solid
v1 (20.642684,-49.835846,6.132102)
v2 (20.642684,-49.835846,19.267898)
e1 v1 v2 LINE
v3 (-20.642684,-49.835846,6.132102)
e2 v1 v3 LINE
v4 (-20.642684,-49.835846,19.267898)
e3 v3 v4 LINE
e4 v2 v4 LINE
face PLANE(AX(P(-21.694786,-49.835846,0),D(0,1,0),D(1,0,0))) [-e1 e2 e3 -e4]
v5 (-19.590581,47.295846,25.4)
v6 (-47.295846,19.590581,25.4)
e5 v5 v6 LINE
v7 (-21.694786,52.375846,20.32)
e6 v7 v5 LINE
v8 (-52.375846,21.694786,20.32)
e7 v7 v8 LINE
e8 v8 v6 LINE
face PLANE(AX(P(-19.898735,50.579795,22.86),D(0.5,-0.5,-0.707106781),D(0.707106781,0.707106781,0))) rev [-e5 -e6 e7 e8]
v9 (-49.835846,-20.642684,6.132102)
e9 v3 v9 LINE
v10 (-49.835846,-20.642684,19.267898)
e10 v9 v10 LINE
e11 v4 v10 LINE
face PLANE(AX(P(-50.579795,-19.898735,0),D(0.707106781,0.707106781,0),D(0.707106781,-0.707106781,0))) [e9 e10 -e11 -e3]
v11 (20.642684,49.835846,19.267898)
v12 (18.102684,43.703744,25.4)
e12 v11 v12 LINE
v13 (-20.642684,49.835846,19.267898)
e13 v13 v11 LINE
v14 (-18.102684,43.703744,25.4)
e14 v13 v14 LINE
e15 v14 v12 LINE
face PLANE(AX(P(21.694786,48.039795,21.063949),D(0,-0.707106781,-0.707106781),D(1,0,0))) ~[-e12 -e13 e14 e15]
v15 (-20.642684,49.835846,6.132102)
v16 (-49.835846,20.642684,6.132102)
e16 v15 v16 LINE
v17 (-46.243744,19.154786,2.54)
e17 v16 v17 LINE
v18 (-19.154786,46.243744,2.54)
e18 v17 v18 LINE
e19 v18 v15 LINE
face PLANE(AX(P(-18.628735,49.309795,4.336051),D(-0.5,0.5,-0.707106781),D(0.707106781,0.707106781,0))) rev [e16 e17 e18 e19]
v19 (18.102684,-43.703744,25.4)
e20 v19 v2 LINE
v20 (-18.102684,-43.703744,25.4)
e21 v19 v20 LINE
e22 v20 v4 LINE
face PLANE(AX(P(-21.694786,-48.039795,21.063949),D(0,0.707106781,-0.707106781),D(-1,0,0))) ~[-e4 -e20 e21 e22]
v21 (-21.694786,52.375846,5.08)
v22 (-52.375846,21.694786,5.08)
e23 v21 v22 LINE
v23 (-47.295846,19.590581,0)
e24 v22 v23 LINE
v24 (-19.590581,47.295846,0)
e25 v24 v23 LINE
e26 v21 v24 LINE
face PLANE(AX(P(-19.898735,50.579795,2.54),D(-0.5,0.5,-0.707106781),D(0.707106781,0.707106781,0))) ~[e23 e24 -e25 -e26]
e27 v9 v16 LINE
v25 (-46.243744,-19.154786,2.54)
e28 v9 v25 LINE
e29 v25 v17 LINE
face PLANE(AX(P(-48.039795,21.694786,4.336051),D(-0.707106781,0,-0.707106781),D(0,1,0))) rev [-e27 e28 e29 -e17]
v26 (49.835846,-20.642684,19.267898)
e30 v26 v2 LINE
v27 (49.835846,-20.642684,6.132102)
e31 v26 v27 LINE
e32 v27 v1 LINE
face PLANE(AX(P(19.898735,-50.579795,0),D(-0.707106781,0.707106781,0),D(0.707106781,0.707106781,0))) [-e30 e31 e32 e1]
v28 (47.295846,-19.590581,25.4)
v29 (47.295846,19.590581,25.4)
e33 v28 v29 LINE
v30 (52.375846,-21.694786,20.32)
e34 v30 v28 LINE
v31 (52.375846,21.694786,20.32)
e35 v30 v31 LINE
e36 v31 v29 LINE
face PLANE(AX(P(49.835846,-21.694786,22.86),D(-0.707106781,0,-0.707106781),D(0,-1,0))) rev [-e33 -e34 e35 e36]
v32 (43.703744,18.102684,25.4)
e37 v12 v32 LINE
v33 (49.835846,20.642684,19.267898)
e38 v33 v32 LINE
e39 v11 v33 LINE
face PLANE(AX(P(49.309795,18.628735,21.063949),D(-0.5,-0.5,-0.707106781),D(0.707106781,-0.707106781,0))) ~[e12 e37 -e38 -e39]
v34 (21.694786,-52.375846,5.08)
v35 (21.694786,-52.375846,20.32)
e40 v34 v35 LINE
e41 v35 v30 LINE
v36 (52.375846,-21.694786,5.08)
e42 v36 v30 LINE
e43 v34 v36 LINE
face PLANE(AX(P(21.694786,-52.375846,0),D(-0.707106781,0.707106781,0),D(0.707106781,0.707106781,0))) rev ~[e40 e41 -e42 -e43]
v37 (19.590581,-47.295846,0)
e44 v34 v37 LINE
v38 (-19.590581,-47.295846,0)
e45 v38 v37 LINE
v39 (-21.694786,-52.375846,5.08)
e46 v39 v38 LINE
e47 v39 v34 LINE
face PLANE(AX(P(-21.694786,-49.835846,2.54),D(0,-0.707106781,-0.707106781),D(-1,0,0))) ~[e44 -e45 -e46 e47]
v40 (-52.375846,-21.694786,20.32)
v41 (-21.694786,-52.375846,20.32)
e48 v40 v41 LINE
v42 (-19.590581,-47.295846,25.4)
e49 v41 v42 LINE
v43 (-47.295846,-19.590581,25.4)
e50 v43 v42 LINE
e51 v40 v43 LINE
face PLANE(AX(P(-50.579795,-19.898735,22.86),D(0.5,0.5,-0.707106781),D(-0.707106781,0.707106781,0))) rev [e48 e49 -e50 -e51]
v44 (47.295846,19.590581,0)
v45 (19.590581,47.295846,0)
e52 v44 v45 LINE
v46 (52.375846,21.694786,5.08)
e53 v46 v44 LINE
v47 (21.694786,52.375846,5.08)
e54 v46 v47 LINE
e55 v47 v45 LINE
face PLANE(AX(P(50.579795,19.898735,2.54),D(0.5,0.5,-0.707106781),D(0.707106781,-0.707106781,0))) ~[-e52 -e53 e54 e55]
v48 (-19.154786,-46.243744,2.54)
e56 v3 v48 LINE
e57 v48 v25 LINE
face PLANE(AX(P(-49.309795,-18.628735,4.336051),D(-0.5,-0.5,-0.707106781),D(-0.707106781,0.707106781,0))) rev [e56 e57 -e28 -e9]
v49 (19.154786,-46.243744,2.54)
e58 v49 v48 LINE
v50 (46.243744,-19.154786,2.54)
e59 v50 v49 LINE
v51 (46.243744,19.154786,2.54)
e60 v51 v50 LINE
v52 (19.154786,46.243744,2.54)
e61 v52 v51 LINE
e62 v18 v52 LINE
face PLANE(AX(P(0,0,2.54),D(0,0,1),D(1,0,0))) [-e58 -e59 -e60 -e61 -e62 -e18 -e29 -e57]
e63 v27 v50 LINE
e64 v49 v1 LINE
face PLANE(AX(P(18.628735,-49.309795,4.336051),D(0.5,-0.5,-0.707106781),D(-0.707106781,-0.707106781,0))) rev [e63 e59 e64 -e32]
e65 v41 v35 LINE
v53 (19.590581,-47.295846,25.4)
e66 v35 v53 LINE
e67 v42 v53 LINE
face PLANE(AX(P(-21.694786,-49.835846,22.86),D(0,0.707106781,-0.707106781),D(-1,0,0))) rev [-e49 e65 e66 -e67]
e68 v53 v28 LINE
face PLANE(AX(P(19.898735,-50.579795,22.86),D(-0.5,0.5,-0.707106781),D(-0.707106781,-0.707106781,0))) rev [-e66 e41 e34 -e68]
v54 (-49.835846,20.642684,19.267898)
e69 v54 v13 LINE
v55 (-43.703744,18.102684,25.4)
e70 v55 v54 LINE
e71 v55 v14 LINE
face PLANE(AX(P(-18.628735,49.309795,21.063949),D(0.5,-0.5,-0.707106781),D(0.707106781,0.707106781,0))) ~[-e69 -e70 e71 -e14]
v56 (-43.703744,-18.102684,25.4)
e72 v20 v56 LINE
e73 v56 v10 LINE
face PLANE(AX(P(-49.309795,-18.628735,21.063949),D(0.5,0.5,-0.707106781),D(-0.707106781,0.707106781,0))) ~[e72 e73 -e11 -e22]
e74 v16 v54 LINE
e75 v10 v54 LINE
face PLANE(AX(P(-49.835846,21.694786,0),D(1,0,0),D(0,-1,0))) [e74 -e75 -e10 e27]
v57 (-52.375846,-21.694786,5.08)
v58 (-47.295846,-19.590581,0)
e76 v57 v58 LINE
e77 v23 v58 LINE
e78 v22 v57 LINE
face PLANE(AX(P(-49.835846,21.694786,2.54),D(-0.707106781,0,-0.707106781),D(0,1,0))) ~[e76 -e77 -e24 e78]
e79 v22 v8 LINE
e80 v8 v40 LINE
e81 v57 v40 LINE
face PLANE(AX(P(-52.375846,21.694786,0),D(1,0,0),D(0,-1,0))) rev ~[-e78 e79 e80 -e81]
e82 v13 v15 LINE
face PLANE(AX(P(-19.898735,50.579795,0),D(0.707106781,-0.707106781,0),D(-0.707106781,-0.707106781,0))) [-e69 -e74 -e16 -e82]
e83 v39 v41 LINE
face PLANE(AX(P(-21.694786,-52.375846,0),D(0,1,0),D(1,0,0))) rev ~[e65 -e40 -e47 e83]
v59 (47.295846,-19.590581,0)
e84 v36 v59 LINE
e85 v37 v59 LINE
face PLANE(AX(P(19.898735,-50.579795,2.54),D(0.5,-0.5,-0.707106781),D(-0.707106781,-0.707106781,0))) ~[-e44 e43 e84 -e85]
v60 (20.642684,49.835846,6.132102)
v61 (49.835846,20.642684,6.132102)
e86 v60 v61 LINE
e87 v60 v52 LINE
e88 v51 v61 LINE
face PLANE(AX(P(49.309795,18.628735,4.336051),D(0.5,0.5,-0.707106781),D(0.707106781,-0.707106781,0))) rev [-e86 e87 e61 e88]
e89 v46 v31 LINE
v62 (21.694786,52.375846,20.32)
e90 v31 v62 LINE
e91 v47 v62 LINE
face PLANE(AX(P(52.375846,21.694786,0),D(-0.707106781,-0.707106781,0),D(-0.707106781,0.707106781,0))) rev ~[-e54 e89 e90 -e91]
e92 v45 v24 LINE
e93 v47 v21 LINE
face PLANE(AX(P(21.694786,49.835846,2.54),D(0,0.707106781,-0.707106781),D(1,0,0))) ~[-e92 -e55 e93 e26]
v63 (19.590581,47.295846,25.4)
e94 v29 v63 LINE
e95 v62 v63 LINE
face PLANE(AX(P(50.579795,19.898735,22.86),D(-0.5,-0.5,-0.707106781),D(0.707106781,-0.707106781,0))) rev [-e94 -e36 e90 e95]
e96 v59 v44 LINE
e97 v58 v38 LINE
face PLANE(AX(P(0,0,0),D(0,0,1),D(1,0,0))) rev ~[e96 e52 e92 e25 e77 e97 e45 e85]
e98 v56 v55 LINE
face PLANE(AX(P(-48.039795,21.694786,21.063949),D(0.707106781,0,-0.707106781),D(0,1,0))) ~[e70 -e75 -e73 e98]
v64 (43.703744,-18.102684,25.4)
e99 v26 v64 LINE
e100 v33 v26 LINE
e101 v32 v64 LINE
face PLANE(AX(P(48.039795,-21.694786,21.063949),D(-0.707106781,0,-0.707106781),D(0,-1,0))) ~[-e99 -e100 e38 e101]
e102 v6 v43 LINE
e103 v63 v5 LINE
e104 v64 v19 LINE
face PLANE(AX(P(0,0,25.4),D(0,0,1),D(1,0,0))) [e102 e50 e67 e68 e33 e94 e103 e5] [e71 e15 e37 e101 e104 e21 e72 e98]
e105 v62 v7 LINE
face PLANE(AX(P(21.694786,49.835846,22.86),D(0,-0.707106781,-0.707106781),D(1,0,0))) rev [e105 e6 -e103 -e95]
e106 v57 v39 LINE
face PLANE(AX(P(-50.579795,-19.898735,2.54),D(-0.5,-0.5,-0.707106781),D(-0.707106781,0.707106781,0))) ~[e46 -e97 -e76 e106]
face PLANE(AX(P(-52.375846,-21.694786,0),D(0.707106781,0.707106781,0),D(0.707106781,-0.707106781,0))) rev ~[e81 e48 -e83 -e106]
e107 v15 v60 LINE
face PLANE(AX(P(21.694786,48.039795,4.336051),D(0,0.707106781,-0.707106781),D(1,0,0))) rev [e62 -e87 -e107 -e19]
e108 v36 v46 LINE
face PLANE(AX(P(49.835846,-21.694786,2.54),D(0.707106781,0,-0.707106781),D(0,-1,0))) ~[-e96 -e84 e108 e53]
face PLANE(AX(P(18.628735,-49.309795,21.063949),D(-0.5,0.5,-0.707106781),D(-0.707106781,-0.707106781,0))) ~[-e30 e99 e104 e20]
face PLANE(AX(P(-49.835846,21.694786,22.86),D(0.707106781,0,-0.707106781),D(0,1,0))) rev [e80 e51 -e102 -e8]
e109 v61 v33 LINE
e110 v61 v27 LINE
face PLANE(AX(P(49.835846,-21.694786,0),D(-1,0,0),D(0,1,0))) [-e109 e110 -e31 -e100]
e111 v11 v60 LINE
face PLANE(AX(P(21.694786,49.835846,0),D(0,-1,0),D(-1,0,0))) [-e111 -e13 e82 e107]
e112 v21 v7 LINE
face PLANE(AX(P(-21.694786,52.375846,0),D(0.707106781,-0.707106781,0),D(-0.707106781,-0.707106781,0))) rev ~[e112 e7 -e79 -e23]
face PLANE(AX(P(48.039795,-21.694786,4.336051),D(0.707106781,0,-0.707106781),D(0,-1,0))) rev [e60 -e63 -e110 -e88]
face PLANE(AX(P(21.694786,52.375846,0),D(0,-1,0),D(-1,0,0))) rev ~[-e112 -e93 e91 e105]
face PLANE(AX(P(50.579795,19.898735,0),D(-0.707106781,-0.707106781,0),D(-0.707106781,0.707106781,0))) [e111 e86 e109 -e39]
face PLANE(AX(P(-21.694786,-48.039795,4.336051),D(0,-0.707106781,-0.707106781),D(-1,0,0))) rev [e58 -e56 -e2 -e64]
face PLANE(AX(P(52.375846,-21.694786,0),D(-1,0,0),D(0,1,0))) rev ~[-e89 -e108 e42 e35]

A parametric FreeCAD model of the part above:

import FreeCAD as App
import Part
import Sketcher
from FreeCAD import Vector


def edges_at(feature, points):
    """Names of the edges that pass closest to the given points."""
    edges = feature.Shape.Edges
    near = lambda p: min(range(len(edges)), key=lambda i: edges[i].distToShape(Part.Vertex(*p))[0])
    return sorted({f"Edge{near(p) + 1}" for p in points})


def faces_at(feature, points):
    """Names of the faces that lie closest to the given points."""
    faces = feature.Shape.Faces
    near = lambda p: min(range(len(faces)), key=lambda i: faces[i].distToShape(Part.Vertex(*p))[0])
    return sorted({f"Face{near(p) + 1}" for p in points})


def add_polygon(sketch, points):
    """Adds a closed chain of lines whose ends are joined by coincident constraints."""
    first, n = sketch.GeometryCount, len(points)
    for a, b in zip(points, points[1:] + points[:1]):
        sketch.addGeometry(Part.LineSegment(App.Vector(*a, 0), App.Vector(*b, 0)), False)
    for i in range(n):
        sketch.addConstraint(Sketcher.Constraint("Coincident", first + i, 2, first + (i + 1) % n, 1))

doc = App.newDocument("Part")
params = doc.addObject("Spreadsheet::Sheet", "Params")
for row, (alias, value) in enumerate([
    ("pad1_length", "1 in"),
    ("chamfer_size", "0.2 in"),
    ("thickness_wall", "0.1 in"),
], start=1):
    params.set(f"A{row}", alias)
    params.set(f"B{row}", "=" + value)
    params.setAlias(f"B{row}", alias)

body = doc.addObject("PartDesign::Body", "Body")

# Sketch on XY plane
sketch1 = body.newObject("Sketcher::SketchObject", "Sketch")
sketch1.AttachmentSupport = (doc.getObject("XY_Plane"), [""])
sketch1.MapMode = "FlatFace"
add_polygon(sketch1, [(52, -22), (52, 22), (22, 52), (-22, 52), (-52, 22), (-52, -22), (-22, -52), (22, -52)])  # lines 0-7
sketch1.addConstraint(Sketcher.Constraint("Vertical", 0))
sketch1.addConstraint(Sketcher.Constraint("Horizontal", 2))
sketch1.addConstraint(Sketcher.Constraint("Vertical", 4))
sketch1.addConstraint(Sketcher.Constraint("Horizontal", 6))
sketch1.addConstraint(Sketcher.Constraint("Symmetric", 0, 2, 4, 2, -1, 1))
sketch1.addConstraint(Sketcher.Constraint("Symmetric", 1, 2, 5, 2, -1, 1))
sketch1.addConstraint(Sketcher.Constraint("Perpendicular", 1, 3))
sketch1.addConstraint(Sketcher.Constraint("Perpendicular", 5, 7))
sketch1.addConstraint(Sketcher.Constraint("Horizontal", 0, 2, 3, 2))
sketch1.addConstraint(Sketcher.Constraint("Horizontal", 4, 2, 7, 2))
sketch1.addConstraint(Sketcher.Constraint("Vertical", 2, 2, 5, 2))
sketch1.addConstraint(Sketcher.Constraint("Equal", 6, 0))
sketch1.addConstraint(Sketcher.Constraint("Distance", 1, 43.389571))
sketch1.addConstraint(Sketcher.Constraint("DistanceX", 2, 2, 2, 1, 43.389572))
pad1 = body.newObject("PartDesign::Pad", "Pad")
pad1.Profile = sketch1
pad1.setExpression("Length", "Params.pad1_length")
doc.recompute()

chamfer = body.newObject("PartDesign::Chamfer", "Chamfer")
chamfer.Base = (pad1, edges_at(pad1, [
    (37.035, -37.035, 25.4),
    (52.376, 0, 25.4),
    (37.035, 37.035, 25.4),
    (0, 52.376, 25.4),
    (-37.035, 37.035, 25.4),
    (-52.376, 0, 25.4),
    (-37.035, -37.035, 25.4),
    (0, -52.376, 25.4),
    (37.035, -37.035, 0),
    (52.376, 0, 0),
    (37.035, 37.035, 0),
    (0, 52.376, 0),
    (-37.035, 37.035, 0),
    (-52.376, 0, 0),
    (-37.035, -37.035, 0),
    (0, -52.376, 0),
]))
chamfer.setExpression("Size", "Params.chamfer_size")
doc.recompute()

thickness = body.newObject("PartDesign::Thickness", "Thickness")
thickness.Base = (chamfer, faces_at(chamfer, [(0, 0, 25.4)]))
thickness.setExpression("Value", "Params.thickness_wall")
thickness.Reversed = True
thickness.Join = "Arc"

doc.recompute()
